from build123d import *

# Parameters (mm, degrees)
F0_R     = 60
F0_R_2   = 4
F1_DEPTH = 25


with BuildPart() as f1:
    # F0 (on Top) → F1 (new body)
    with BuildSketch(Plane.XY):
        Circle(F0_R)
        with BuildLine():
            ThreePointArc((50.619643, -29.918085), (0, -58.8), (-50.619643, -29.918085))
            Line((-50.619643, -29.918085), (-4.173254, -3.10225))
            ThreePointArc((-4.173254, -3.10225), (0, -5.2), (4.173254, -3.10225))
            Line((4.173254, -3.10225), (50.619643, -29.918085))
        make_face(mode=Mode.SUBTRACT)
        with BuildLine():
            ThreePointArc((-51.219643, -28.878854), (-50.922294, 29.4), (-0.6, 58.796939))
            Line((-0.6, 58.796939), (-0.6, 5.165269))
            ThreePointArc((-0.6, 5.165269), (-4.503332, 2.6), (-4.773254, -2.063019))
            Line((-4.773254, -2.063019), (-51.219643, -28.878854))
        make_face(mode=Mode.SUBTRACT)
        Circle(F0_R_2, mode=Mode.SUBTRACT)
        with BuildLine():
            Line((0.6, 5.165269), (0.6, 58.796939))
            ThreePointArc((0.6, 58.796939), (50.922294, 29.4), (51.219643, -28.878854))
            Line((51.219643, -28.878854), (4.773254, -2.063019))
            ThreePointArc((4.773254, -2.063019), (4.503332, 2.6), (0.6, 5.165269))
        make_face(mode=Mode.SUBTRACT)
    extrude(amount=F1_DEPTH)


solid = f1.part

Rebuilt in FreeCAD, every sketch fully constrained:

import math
import FreeCAD as App
import Part
import Sketcher

V = App.Vector
Q = App.Units.Quantity

doc = App.newDocument("Part")
body = doc.addObject("PartDesign::Body", "Body")

# Sketch on XY plane
sketch1 = doc.addObject("Sketcher::SketchObject", "Sketch")
body.addObject(sketch1)
sketch1.AttachmentSupport = (doc.XY_Plane, [""])
sketch1.MapMode = "FlatFace"
sketch1.addGeometry(Part.Circle(V(0, 0, 0), V(0, 0, 1), 60), False)
sketch1.addGeometry(Part.LineSegment(V(4.173254, -3.10225, 0), V(50.619643, -29.918085, 0)), False)
sketch1.addGeometry(Part.ArcOfCircle(Part.Circle(V(0, 0.000001, 0), V(0, 0, 1), 58.800001), math.radians(-149.415338), math.radians(-30.584662)), False)
sketch1.addGeometry(Part.LineSegment(V(-50.619643, -29.918085, 0), V(-4.173254, -3.10225, 0)), False)
sketch1.addGeometry(Part.ArcOfCircle(Part.Circle(V(0, 0.000001, 0), V(0, 0, 1), 5.200001), math.radians(-143.374179), math.radians(-36.625821)), False)
sketch1.addGeometry(Part.LineSegment(V(-4.773254, -2.063019, 0), V(-51.219643, -28.878854, 0)), False)
sketch1.addGeometry(Part.ArcOfCircle(Part.Circle(V(0, 0, 0), V(0, 0, 1), 58.8), math.radians(90.584661), math.radians(209.415339)), False)
sketch1.addGeometry(Part.LineSegment(V(-0.6, 58.796939, 0), V(-0.6, 5.165269, 0)), False)
sketch1.addGeometry(Part.ArcOfCircle(Part.Circle(V(0.000001, 0, 0), V(0, 0, 1), 5.200001), math.radians(96.625817), math.radians(203.374183)), False)
sketch1.addGeometry(Part.Circle(V(0, 0, 0), V(0, 0, 1), 4), False)
sketch1.addGeometry(Part.ArcOfCircle(Part.Circle(V(-0.000001, 0, 0), V(0, 0, 1), 5.200001), math.radians(-23.374183), math.radians(83.374183)), False)
sketch1.addGeometry(Part.LineSegment(V(0.6, 5.165269, 0), V(0.6, 58.796939, 0)), False)
sketch1.addGeometry(Part.ArcOfCircle(Part.Circle(V(0, 0, 0), V(0, 0, 1), 58.8), math.radians(-29.415339), math.radians(89.415339)), False)
sketch1.addGeometry(Part.LineSegment(V(51.219643, -28.878854, 0), V(4.773254, -2.063019, 0)), False)
sketch1.addConstraint(Sketcher.Constraint("Coincident", 1, 2, 2, 2))
sketch1.addConstraint(Sketcher.Constraint("Coincident", 2, 1, 3, 1))
sketch1.addConstraint(Sketcher.Constraint("Coincident", 3, 2, 4, 1))
sketch1.addConstraint(Sketcher.Constraint("Coincident", 4, 2, 1, 1))
sketch1.addConstraint(Sketcher.Constraint("Coincident", 5, 2, 6, 2))
sketch1.addConstraint(Sketcher.Constraint("Coincident", 6, 1, 7, 1))
sketch1.addConstraint(Sketcher.Constraint("Coincident", 7, 2, 8, 1))
sketch1.addConstraint(Sketcher.Constraint("Coincident", 8, 2, 5, 1))
sketch1.addConstraint(Sketcher.Constraint("Coincident", 10, 2, 11, 1))
sketch1.addConstraint(Sketcher.Constraint("Coincident", 11, 2, 12, 2))
sketch1.addConstraint(Sketcher.Constraint("Coincident", 12, 1, 13, 1))
sketch1.addConstraint(Sketcher.Constraint("Coincident", 13, 2, 10, 1))
sketch1.addConstraint(Sketcher.Constraint("Vertical", 7))
sketch1.addConstraint(Sketcher.Constraint("Vertical", 11))
sketch1.addConstraint(Sketcher.Constraint("Coincident", 0, 3, -1, 1))
sketch1.addConstraint(Sketcher.Constraint("Coincident", 2, 3, -1, 1))
sketch1.addConstraint(Sketcher.Constraint("Coincident", 4, 3, -1, 1))
sketch1.addConstraint(Sketcher.Constraint("Coincident", 6, 3, -1, 1))
sketch1.addConstraint(Sketcher.Constraint("Coincident", 8, 3, -1, 1))
sketch1.addConstraint(Sketcher.Constraint("Coincident", 9, 3, -1, 1))
sketch1.addConstraint(Sketcher.Constraint("Coincident", 10, 3, -1, 1))
sketch1.addConstraint(Sketcher.Constraint("Coincident", 12, 3, -1, 1))
sketch1.addConstraint(Sketcher.Constraint("Equal", 2, 6))
sketch1.addConstraint(Sketcher.Constraint("Equal", 4, 8))
sketch1.addConstraint(Sketcher.Constraint("Equal", 8, 10))
sketch1.addConstraint(Sketcher.Constraint("Equal", 6, 12))
sketch1.addConstraint(Sketcher.Constraint("Parallel", 3, 5))
sketch1.addConstraint(Sketcher.Constraint("Parallel", 1, 13))
sketch1.addConstraint(Sketcher.Constraint("Horizontal", 1, 2, 2, 1))
sketch1.addConstraint(Sketcher.Constraint("Horizontal", 3, 2, 4, 2))
sketch1.addConstraint(Sketcher.Constraint("Horizontal", 7, 2, 10, 2))
sketch1.addConstraint(Sketcher.Constraint("Horizontal", 5, 2, 12, 1))
sketch1.addConstraint(Sketcher.Constraint("Equal", 3, 5))
sketch1.addConstraint(Sketcher.Constraint("Diameter", 0, Q("120 mm")))
sketch1.addConstraint(Sketcher.Constraint("Diameter", 9, Q("8 mm")))
sketch1.addConstraint(Sketcher.Constraint("Radius", 2, Q("58.800001 mm")))
sketch1.addConstraint(Sketcher.Constraint("Radius", 4, Q("5.200001 mm")))
sketch1.addConstraint(Sketcher.Constraint("Angle", 1, Q("-30 deg")))
sketch1.addConstraint(Sketcher.Constraint("DistanceX", 6, 1, -1, 1, Q("0.6 mm")))
sketch1.addConstraint(Sketcher.Constraint("DistanceX", 5, 2, 2, 1, Q("0.6 mm")))
pad1 = doc.addObject("PartDesign::Pad", "Pad")
body.addObject(pad1)
pad1.Profile = sketch1
pad1.Length = 25

doc.recompute()
